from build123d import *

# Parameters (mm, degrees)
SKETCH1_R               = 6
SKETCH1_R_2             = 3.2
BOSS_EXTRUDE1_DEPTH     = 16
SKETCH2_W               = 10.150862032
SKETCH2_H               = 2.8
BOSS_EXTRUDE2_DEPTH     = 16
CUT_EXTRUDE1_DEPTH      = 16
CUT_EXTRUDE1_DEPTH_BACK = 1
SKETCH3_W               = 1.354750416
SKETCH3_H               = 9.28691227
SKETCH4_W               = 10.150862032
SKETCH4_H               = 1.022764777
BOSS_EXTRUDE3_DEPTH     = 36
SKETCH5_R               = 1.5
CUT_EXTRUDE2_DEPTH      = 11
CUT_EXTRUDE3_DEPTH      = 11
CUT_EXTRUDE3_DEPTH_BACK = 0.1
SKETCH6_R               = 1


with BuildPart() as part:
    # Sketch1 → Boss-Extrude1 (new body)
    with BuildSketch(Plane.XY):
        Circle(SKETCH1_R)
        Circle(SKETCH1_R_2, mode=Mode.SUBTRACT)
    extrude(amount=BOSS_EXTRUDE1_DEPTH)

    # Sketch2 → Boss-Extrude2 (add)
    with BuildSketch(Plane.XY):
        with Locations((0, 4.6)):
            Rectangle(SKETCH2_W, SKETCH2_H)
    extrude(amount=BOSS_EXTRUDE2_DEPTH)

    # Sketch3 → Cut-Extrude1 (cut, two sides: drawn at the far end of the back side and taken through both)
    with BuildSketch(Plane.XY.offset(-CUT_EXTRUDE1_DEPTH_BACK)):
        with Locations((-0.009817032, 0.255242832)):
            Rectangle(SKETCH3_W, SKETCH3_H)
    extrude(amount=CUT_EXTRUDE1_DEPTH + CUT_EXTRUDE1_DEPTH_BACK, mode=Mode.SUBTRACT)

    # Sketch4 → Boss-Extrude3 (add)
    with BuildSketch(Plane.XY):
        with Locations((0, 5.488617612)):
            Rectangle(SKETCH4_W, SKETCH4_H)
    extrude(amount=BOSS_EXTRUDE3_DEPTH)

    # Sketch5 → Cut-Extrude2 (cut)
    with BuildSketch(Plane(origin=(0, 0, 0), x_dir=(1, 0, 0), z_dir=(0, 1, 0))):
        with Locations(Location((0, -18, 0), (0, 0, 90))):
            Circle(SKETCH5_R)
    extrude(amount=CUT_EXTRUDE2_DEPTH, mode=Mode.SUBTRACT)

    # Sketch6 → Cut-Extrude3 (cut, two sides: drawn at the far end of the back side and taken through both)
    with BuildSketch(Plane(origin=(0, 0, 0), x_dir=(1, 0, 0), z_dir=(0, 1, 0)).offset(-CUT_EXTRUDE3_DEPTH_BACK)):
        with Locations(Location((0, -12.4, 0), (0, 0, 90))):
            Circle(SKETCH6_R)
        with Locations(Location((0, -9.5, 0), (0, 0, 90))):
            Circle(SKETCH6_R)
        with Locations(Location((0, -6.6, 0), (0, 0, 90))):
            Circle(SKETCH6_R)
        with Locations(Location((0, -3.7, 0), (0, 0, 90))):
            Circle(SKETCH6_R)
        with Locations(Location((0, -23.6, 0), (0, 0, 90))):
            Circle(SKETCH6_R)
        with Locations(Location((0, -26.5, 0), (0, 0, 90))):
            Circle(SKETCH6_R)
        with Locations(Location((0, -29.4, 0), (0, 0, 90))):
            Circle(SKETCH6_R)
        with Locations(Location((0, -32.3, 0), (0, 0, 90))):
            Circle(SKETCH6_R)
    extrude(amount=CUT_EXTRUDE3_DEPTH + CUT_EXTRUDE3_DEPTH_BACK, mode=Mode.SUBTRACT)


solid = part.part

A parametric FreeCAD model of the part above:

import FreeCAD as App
import Part
import Sketcher
from FreeCAD import Vector
Q = App.Units.Quantity


def add_polygon(sketch, points):
    """Adds a closed chain of lines whose ends are joined by coincident constraints."""
    first, n = sketch.GeometryCount, len(points)
    for a, b in zip(points, points[1:] + points[:1]):
        sketch.addGeometry(Part.LineSegment(App.Vector(*a, 0), App.Vector(*b, 0)), False)
    for i in range(n):
        sketch.addConstraint(Sketcher.Constraint("Coincident", first + i, 2, first + (i + 1) % n, 1))

doc = App.newDocument("Part")
body = doc.addObject("PartDesign::Body", "Body")

sketch1 = body.newObject("Sketcher::SketchObject", "Sketch")
sketch1.AttachmentSupport = (doc.getObject("XY_Plane"), [""])
sketch1.MapMode = "FlatFace"
sketch1.addGeometry([
    Part.Circle(Vector(0, 0, 0), Vector(0, 0, 1), 6),
    Part.Circle(Vector(0, 0, 0), Vector(0, 0, 1), 3.2),
], False)
sketch1.addConstraint([
    Sketcher.Constraint("Coincident", 0, 3, -1, 1),
    Sketcher.Constraint("Coincident", 1, 3, -1, 1),
    Sketcher.Constraint("Diameter", 0, Q("12 mm")),
    Sketcher.Constraint("Diameter", 1, Q("6.4 mm")),
])
pad1 = body.newObject("PartDesign::Pad", "Pad")
pad1.Profile = sketch1
pad1.Length = 16

sketch2 = body.newObject("Sketcher::SketchObject", "Sketch001")
sketch2.AttachmentSupport = (doc.getObject("XY_Plane"), [""])
sketch2.MapMode = "FlatFace"
add_polygon(sketch2, [(-5.1, 6), (-5.1, 3.2), (5.1, 3.2), (5.1, 6)])
sketch2.addConstraint([
    Sketcher.Constraint("Vertical", 0),
    Sketcher.Constraint("Horizontal", 1),
    Sketcher.Constraint("Vertical", 2),
    Sketcher.Constraint("Horizontal", 3),
    Sketcher.Constraint("DistanceY", 0, 2, 0, 1, Q("2.8 mm")),
    Sketcher.Constraint("DistanceY", -1, 1, 2, 2, Q("6 mm")),
    Sketcher.Constraint("DistanceX", 1, 1, 1, 2, Q("10.150862 mm")),
    Sketcher.Constraint("DistanceX", 0, 2, -1, 1, Q("5.075431 mm")),
])
pad2 = body.newObject("PartDesign::Pad", "Pad001")
pad2.Profile = sketch2
pad2.Length = 16

sketch3 = body.newObject("Sketcher::SketchObject", "Sketch002")
sketch3.AttachmentSupport = (doc.getObject("XY_Plane"), [""])
sketch3.MapMode = "FlatFace"
add_polygon(sketch3, [(-0.7, 4.9), (-0.7, -4.4), (0.7, -4.4), (0.7, 4.9)])
sketch3.addConstraint([
    Sketcher.Constraint("Vertical", 0),
    Sketcher.Constraint("Horizontal", 1),
    Sketcher.Constraint("Vertical", 2),
    Sketcher.Constraint("Horizontal", 3),
    Sketcher.Constraint("DistanceX", 1, 1, 1, 2, Q("1.35475 mm")),
    Sketcher.Constraint("DistanceY", -1, 1, 2, 2, Q("4.898699 mm")),
    Sketcher.Constraint("DistanceY", 0, 2, 0, 1, Q("9.286912 mm")),
    Sketcher.Constraint("DistanceX", -1, 1, 1, 2, Q("0.667558 mm")),
])
pocket1 = body.newObject("PartDesign::Pocket", "Pocket")
pocket1.Profile = sketch3
pocket1.Type = "ThroughAll"
pocket1.Midplane = True

sketch4 = body.newObject("Sketcher::SketchObject", "Sketch003")
sketch4.AttachmentSupport = (doc.getObject("XY_Plane"), [""])
sketch4.MapMode = "FlatFace"
add_polygon(sketch4, [(-5.1, 6), (-5.1, 5), (5.1, 5), (5.1, 6)])
sketch4.addConstraint([
    Sketcher.Constraint("Vertical", 0),
    Sketcher.Constraint("Horizontal", 1),
    Sketcher.Constraint("Vertical", 2),
    Sketcher.Constraint("Horizontal", 3),
    Sketcher.Constraint("DistanceY", -1, 1, 2, 2, Q("6 mm")),
    Sketcher.Constraint("DistanceX", 1, 1, 1, 2, Q("10.150862 mm")),
    Sketcher.Constraint("DistanceY", 0, 2, 0, 1, Q("1.022765 mm")),
    Sketcher.Constraint("DistanceX", 0, 2, -1, 1, Q("5.075431 mm")),
])
pad3 = body.newObject("PartDesign::Pad", "Pad002")
pad3.Profile = sketch4
pad3.Length = 36

sketch5 = body.newObject("Sketcher::SketchObject", "Sketch004")
sketch5.AttachmentSupport = (doc.getObject("XZ_Plane"), [""])
sketch5.MapMode = "FlatFace"
sketch5.addGeometry(Part.Circle(Vector(0, 18, 0), Vector(0, 0, 1), 1.5), False)
sketch5.addConstraint([
    Sketcher.Constraint("PointOnObject", 0, 3, -2),
    Sketcher.Constraint("Diameter", 0, Q("3 mm")),
    Sketcher.Constraint("DistanceY", -1, 1, 0, 3, Q("18 mm")),
])
pocket2 = body.newObject("PartDesign::Pocket", "Pocket001")
pocket2.Profile = sketch5
pocket2.Length = 11

sketch6 = body.newObject("Sketcher::SketchObject", "Sketch005")
sketch6.AttachmentSupport = (doc.getObject("XZ_Plane"), [""])
sketch6.MapMode = "FlatFace"
sketch6.addGeometry([
    Part.Circle(Vector(0, 12.4, 0), Vector(0, 0, 1), 1),
    Part.Circle(Vector(0, 9.5, 0), Vector(0, 0, 1), 1),
    Part.Circle(Vector(0, 6.6, 0), Vector(0, 0, 1), 1),
    Part.Circle(Vector(0, 3.7, 0), Vector(0, 0, 1), 1),
    Part.Circle(Vector(0, 23.6, 0), Vector(0, 0, 1), 1),
    Part.Circle(Vector(0, 26.5, 0), Vector(0, 0, 1), 1),
    Part.Circle(Vector(0, 29.4, 0), Vector(0, 0, 1), 1),
    Part.Circle(Vector(0, 32.3, 0), Vector(0, 0, 1), 1),
], False)
sketch6.addConstraint([
    Sketcher.Constraint("Equal", 0, 1),
    Sketcher.Constraint("Equal", 1, 2),
    Sketcher.Constraint("Equal", 2, 3),
    Sketcher.Constraint("Equal", 3, 4),
    Sketcher.Constraint("Equal", 4, 5),
    Sketcher.Constraint("Equal", 5, 6),
    Sketcher.Constraint("Equal", 6, 7),
    Sketcher.Constraint("PointOnObject", 0, 3, -2),
    Sketcher.Constraint("PointOnObject", 1, 3, -2),
    Sketcher.Constraint("PointOnObject", 2, 3, -2),
    Sketcher.Constraint("PointOnObject", 3, 3, -2),
    Sketcher.Constraint("PointOnObject", 4, 3, -2),
    Sketcher.Constraint("PointOnObject", 5, 3, -2),
    Sketcher.Constraint("PointOnObject", 6, 3, -2),
    Sketcher.Constraint("PointOnObject", 7, 3, -2),
    Sketcher.Constraint("Diameter", 0, Q("2 mm")),
    Sketcher.Constraint("DistanceY", 2, 3, 4, 3, Q("17 mm")),
    Sketcher.Constraint("DistanceY", 1, 3, 5, 3, Q("17 mm")),
    Sketcher.Constraint("DistanceY", 0, 3, 6, 3, Q("17 mm")),
    Sketcher.Constraint("DistanceY", -1, 1, 0, 3, Q("12.4 mm")),
    Sketcher.Constraint("DistanceY", -1, 1, 1, 3, Q("9.5 mm")),
    Sketcher.Constraint("DistanceY", -1, 1, 2, 3, Q("6.6 mm")),
    Sketcher.Constraint("DistanceY", -1, 1, 3, 3, Q("3.7 mm")),
    Sketcher.Constraint("DistanceY", -1, 1, 7, 3, Q("32.3 mm")),
])
pocket3 = body.newObject("PartDesign::Pocket", "Pocket002")
pocket3.Profile = sketch6
pocket3.Type = "TwoLengths"
pocket3.Length = 11
pocket3.Length2 = 0.1

doc.recompute()
